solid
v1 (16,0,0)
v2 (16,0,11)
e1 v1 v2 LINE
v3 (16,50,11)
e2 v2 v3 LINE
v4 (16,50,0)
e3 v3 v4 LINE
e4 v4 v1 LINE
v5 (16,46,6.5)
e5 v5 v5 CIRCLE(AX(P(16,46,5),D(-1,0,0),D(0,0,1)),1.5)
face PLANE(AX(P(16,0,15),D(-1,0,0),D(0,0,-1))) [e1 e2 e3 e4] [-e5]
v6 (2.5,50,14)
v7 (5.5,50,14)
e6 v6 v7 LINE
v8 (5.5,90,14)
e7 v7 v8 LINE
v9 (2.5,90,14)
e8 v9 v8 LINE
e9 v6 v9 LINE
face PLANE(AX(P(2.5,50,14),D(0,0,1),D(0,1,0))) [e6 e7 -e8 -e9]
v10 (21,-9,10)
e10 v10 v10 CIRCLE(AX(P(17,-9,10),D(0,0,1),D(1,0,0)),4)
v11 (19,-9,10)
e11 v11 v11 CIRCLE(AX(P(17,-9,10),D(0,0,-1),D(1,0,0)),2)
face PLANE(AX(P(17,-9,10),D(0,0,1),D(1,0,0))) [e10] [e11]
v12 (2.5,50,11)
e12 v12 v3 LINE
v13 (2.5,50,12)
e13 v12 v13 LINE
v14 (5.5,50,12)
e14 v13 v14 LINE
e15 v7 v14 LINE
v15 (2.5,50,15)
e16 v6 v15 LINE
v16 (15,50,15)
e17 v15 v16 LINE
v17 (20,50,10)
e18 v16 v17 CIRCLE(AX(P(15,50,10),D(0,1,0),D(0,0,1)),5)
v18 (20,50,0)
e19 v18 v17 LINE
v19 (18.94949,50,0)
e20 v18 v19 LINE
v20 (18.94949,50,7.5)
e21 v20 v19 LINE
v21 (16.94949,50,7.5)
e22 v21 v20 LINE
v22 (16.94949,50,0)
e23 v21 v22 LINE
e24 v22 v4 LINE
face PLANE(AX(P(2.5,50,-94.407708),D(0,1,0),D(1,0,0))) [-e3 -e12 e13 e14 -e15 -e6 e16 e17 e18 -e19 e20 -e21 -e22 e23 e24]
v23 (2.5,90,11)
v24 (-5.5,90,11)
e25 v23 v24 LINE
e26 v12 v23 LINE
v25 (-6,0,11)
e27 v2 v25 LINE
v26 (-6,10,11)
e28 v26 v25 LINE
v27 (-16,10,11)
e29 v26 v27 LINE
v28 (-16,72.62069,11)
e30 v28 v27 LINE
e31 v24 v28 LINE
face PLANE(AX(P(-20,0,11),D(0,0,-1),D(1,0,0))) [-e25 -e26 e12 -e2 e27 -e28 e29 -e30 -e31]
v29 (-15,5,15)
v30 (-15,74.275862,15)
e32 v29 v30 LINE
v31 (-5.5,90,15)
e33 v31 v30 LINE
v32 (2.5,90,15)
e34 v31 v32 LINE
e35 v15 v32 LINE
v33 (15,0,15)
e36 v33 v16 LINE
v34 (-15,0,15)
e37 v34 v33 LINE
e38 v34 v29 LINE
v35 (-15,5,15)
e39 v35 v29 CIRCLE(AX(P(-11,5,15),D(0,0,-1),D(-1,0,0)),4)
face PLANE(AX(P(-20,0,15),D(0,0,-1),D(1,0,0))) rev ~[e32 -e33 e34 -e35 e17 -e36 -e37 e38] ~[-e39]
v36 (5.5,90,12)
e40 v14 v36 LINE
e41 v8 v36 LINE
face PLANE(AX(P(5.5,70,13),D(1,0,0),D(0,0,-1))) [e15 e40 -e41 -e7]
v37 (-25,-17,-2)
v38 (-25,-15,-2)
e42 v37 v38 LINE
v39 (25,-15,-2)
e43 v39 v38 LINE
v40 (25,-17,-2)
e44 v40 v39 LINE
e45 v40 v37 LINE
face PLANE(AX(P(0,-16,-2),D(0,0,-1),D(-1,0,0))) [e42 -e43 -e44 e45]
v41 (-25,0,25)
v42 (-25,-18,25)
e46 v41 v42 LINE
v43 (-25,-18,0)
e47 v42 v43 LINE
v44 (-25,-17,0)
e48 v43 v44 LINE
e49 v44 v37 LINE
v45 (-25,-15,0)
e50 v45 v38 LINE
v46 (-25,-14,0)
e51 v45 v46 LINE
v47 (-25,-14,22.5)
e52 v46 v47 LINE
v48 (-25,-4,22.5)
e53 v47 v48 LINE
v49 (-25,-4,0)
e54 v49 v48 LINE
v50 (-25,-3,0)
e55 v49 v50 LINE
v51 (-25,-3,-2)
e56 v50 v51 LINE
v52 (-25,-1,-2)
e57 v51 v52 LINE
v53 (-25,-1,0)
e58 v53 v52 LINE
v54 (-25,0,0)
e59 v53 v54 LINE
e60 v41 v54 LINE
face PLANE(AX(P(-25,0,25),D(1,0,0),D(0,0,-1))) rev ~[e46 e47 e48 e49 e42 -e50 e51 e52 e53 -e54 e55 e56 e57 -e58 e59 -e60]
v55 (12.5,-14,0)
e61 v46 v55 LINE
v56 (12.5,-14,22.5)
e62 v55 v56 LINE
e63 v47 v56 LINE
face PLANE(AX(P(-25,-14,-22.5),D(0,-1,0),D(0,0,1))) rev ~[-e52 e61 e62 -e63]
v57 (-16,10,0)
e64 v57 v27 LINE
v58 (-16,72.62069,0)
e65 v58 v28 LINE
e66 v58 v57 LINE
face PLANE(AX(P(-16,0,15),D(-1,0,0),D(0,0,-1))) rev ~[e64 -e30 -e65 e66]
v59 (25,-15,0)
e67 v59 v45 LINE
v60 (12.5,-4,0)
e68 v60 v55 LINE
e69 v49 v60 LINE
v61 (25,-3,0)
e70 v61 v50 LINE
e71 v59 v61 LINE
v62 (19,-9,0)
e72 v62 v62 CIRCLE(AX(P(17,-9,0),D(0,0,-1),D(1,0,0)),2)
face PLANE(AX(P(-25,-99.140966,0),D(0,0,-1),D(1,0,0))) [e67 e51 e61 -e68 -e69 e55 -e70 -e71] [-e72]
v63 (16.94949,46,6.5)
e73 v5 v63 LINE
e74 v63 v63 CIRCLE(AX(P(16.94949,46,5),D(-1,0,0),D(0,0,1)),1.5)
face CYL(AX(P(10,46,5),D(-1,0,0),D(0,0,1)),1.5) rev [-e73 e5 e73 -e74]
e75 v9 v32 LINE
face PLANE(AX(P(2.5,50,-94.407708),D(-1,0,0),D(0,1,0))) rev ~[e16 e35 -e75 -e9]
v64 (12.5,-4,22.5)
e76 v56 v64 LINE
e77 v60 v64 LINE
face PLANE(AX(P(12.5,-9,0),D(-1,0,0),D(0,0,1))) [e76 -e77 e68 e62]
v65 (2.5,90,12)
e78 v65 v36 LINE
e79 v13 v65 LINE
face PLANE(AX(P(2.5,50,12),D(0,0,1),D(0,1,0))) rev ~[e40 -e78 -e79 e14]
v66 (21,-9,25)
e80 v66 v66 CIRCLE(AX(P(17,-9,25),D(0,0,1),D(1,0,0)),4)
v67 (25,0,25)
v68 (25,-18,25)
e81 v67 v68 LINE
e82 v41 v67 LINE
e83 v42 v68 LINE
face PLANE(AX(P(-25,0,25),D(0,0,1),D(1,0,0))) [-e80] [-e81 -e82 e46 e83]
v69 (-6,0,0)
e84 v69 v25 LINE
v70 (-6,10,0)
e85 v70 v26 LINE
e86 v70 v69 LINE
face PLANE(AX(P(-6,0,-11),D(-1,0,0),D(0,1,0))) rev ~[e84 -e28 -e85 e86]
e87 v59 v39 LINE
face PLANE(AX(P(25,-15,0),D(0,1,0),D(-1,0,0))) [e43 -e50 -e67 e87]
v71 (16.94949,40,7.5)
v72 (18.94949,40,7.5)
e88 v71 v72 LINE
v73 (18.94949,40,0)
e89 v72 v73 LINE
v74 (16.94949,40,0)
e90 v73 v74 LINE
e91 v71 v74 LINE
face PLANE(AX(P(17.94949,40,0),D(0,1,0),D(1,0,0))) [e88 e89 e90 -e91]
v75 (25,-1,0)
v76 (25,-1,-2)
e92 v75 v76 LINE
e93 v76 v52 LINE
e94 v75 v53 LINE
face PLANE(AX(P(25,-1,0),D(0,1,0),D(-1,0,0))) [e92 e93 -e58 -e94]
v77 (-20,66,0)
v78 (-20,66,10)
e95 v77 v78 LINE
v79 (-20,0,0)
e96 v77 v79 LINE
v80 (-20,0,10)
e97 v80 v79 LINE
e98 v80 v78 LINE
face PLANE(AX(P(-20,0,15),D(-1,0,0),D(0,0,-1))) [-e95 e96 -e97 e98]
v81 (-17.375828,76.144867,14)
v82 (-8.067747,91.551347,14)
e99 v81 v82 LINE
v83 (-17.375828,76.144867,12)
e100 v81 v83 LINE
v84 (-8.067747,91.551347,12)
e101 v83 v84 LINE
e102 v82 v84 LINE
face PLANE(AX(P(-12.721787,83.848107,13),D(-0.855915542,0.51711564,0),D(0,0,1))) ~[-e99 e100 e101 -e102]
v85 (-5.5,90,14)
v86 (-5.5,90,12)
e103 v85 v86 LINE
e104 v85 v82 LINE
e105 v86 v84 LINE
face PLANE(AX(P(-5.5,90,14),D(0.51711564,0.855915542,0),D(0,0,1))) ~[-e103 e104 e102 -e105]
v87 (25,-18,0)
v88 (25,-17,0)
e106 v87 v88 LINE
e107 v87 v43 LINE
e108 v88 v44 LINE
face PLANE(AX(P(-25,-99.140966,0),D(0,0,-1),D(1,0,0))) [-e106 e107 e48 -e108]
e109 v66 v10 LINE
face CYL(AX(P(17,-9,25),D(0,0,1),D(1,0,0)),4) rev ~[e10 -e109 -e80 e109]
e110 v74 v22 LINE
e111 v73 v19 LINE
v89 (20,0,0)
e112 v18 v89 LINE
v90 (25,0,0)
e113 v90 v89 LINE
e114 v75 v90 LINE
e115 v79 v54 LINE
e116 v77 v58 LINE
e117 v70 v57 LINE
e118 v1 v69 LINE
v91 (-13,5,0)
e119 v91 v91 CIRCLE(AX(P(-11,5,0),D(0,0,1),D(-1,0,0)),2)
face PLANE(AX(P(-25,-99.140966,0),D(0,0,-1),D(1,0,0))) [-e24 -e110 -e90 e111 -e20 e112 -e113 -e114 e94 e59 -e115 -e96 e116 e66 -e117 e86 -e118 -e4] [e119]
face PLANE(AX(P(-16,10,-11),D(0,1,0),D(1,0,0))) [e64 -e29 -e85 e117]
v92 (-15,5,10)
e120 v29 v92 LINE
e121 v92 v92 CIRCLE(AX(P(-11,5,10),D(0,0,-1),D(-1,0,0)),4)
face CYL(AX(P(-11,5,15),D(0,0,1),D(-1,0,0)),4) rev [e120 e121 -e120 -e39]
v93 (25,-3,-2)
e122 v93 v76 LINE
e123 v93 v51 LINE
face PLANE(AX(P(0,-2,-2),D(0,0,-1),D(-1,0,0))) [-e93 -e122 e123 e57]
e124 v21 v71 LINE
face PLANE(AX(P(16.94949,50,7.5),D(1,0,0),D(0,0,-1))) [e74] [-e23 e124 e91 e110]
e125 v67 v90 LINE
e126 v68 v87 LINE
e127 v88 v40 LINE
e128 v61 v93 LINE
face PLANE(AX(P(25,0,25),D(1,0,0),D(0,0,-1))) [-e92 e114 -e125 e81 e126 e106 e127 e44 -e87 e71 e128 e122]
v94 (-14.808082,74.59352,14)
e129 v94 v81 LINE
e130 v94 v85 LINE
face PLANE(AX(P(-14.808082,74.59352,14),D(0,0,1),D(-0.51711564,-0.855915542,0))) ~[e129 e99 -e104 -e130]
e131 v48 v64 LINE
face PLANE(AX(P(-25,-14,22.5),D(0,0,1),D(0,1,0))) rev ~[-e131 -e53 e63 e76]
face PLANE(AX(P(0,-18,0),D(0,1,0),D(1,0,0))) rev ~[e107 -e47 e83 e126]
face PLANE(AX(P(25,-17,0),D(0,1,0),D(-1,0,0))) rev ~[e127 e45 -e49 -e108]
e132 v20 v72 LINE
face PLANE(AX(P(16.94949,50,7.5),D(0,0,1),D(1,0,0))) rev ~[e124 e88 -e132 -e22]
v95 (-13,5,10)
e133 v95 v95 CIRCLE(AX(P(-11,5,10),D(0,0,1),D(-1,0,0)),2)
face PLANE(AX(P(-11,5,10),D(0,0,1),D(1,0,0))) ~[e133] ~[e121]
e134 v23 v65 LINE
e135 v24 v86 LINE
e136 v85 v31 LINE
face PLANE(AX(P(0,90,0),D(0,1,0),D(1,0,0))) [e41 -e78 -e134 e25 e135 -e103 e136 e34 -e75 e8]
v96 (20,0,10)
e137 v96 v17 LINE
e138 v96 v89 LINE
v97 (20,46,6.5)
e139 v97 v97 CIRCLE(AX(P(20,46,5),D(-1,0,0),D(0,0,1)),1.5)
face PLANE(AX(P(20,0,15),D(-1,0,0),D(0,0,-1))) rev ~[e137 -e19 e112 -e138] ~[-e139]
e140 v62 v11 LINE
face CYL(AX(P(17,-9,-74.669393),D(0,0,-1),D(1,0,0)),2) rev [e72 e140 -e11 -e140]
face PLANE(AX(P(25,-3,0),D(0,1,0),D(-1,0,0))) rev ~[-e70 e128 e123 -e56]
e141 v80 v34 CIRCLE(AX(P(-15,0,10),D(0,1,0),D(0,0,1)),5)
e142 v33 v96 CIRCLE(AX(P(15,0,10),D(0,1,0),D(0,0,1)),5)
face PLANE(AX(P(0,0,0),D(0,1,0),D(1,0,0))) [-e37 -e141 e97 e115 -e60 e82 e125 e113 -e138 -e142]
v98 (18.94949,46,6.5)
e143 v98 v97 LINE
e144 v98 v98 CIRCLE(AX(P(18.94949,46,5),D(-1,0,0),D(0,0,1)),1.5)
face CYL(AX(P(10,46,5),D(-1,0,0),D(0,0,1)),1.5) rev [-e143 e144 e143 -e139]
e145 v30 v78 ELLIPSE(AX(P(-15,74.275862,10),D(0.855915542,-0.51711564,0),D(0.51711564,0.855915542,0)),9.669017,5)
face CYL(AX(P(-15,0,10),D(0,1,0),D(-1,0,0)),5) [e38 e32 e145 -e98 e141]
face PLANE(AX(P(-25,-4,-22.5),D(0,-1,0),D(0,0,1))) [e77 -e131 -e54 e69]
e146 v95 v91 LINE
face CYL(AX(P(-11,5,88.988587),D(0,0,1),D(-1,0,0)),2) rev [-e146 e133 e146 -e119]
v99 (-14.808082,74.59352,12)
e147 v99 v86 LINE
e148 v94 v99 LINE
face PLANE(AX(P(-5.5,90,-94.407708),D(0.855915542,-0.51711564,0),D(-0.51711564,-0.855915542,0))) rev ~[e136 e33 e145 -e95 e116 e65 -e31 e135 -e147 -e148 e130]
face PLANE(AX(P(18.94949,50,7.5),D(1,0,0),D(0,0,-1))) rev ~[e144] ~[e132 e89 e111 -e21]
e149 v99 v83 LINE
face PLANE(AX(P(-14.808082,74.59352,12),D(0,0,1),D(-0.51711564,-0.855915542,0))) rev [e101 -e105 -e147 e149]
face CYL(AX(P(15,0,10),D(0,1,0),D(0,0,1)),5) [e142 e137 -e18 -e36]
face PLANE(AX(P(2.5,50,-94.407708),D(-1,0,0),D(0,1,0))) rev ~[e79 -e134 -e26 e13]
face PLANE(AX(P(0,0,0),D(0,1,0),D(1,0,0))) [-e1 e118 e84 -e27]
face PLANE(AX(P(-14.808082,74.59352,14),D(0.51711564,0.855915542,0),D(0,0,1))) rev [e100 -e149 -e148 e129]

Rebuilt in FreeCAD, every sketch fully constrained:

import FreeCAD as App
import Part
import Sketcher
Q = App.Units.Quantity


def edges_at(feature, points):
    """Names of the edges that pass closest to the given points."""
    edges = feature.Shape.Edges
    near = lambda p: min(range(len(edges)), key=lambda i: edges[i].distToShape(Part.Vertex(*p))[0])
    return sorted({f"Edge{near(p) + 1}" for p in points})


def faces_at(feature, points):
    """Names of the faces that lie closest to the given points."""
    faces = feature.Shape.Faces
    near = lambda p: min(range(len(faces)), key=lambda i: faces[i].distToShape(Part.Vertex(*p))[0])
    return sorted({f"Face{near(p) + 1}" for p in points})

doc = App.newDocument("Part")
body = doc.addObject("PartDesign::Body", "Body")

sketch1 = body.newObject("Sketcher::SketchObject", "Sketch")
sketch1.AttachmentSupport = (doc.getObject("XZ_Plane"), [""])
sketch1.MapMode = "FlatFace"
sketch1.addGeometry([
    Part.LineSegment(App.Vector(-20, -15, 0), App.Vector(-20, 15, 0)),
    Part.LineSegment(App.Vector(-20, 15, 0), App.Vector(20, 15, 0)),
    Part.LineSegment(App.Vector(20, 15, 0), App.Vector(20, -15, 0)),
    Part.LineSegment(App.Vector(20, -15, 0), App.Vector(-20, -15, 0)),
], False)
sketch1.addConstraint([
    Sketcher.Constraint("Coincident", 0, 2, 1, 1),
    Sketcher.Constraint("Coincident", 1, 2, 2, 1),
    Sketcher.Constraint("Coincident", 2, 2, 3, 1),
    Sketcher.Constraint("Coincident", 3, 2, 0, 1),
    Sketcher.Constraint("Vertical", 0),
    Sketcher.Constraint("Horizontal", 1),
    Sketcher.Constraint("Vertical", 2),
    Sketcher.Constraint("Horizontal", 3),
    Sketcher.Constraint("Symmetric", 0, 2, 2, 2, -1, 1),
    Sketcher.Constraint("DistanceX", 1, 1, 1, 2, Q("40 mm")),
    Sketcher.Constraint("DistanceY", 0, 1, 0, 2, Q("30 mm")),
])
pad1 = body.newObject("PartDesign::Pad", "Pad")
pad1.Profile = sketch1
pad1.Length = 90
pad1.Reversed = True
doc.recompute()

thickness = body.newObject("PartDesign::Thickness", "Thickness")
thickness.Base = (pad1, faces_at(pad1, [(0, 90, 0), (0, 0, 0)]))
thickness.Value = 4
thickness.Reversed = True
thickness.Join = "Intersection"
doc.recompute()

fillet = body.newObject("PartDesign::Fillet", "Fillet")
fillet.Base = (thickness, edges_at(thickness, [
    (20, 45, 15),
    (-20, 45, 15),
    (-20, 45, -15),
    (20, 45, -15),
]))
fillet.Radius = 5

sketch2 = body.newObject("Sketcher::SketchObject", "Sketch001")
sketch2.AttachmentSupport = (doc.getObject("XY_Plane"), [""])
sketch2.MapMode = "FlatFace"
sketch2.addGeometry([
    Part.LineSegment(App.Vector(-20, 66, 0), App.Vector(-6, 90, 0)),
    Part.LineSegment(App.Vector(-6, 90, 0), App.Vector(-20, 90, 0)),
    Part.LineSegment(App.Vector(-20, 90, 0), App.Vector(-20, 66, 0)),
], False)
sketch2.addConstraint([
    Sketcher.Constraint("Coincident", 0, 2, 1, 1),
    Sketcher.Constraint("Coincident", 1, 2, 2, 1),
    Sketcher.Constraint("Coincident", 2, 2, 0, 1),
    Sketcher.Constraint("Horizontal", 1),
    Sketcher.Constraint("Vertical", 2),
    Sketcher.Constraint("DistanceY", 2, 2, 2, 1, Q("24 mm")),
    Sketcher.Constraint("DistanceX", 1, 2, 1, 1, Q("14.5 mm")),
    Sketcher.Constraint("DistanceY", -1, 1, 0, 2, Q("90 mm")),
    Sketcher.Constraint("DistanceX", 1, 2, -1, 1, Q("20 mm")),
])
pocket1 = body.newObject("PartDesign::Pocket", "Pocket")
pocket1.Profile = sketch2
pocket1.Type = "ThroughAll"
pocket1.Midplane = True

sketch3 = body.newObject("Sketcher::SketchObject", "Sketch002")
sketch3.AttachmentSupport = (doc.getObject("XY_Plane"), [""])
sketch3.MapMode = "FlatFace"
sketch3.addGeometry([
    Part.LineSegment(App.Vector(2, 90, 0), App.Vector(2, 50, 0)),
    Part.LineSegment(App.Vector(2, 50, 0), App.Vector(20, 50, 0)),
    Part.LineSegment(App.Vector(20, 50, 0), App.Vector(20, 90, 0)),
    Part.LineSegment(App.Vector(20, 90, 0), App.Vector(2, 90, 0)),
], False)
sketch3.addConstraint([
    Sketcher.Constraint("Coincident", 0, 2, 1, 1),
    Sketcher.Constraint("Coincident", 1, 2, 2, 1),
    Sketcher.Constraint("Coincident", 2, 2, 3, 1),
    Sketcher.Constraint("Coincident", 3, 2, 0, 1),
    Sketcher.Constraint("Vertical", 0),
    Sketcher.Constraint("Horizontal", 1),
    Sketcher.Constraint("Vertical", 2),
    Sketcher.Constraint("Horizontal", 3),
    Sketcher.Constraint("DistanceY", 0, 2, 0, 1, Q("40 mm")),
    Sketcher.Constraint("DistanceX", 1, 1, 1, 2, Q("17.5 mm")),
    Sketcher.Constraint("DistanceY", -1, 1, 0, 2, Q("50 mm")),
    Sketcher.Constraint("DistanceX", -1, 1, 1, 2, Q("20 mm")),
])
pocket2 = body.newObject("PartDesign::Pocket", "Pocket001")
pocket2.Profile = sketch3
pocket2.Type = "ThroughAll"
pocket2.Midplane = True

sketch4 = body.newObject("Sketcher::SketchObject", "Sketch003")
sketch4.AttachmentSupport = (doc.getObject("YZ_Plane"), [""])
sketch4.MapMode = "FlatFace"
sketch4.AttachmentOffset = App.Placement(App.Vector(0, 0, 2.5), App.Rotation())
sketch4.addGeometry([
    Part.LineSegment(App.Vector(90, 14, 0), App.Vector(50, 14, 0)),
    Part.LineSegment(App.Vector(50, 14, 0), App.Vector(50, 12, 0)),
    Part.LineSegment(App.Vector(50, 12, 0), App.Vector(90, 12, 0)),
    Part.LineSegment(App.Vector(90, 12, 0), App.Vector(90, 14, 0)),
], False)
sketch4.addConstraint([
    Sketcher.Constraint("Coincident", 0, 2, 1, 1),
    Sketcher.Constraint("Coincident", 1, 2, 2, 1),
    Sketcher.Constraint("Coincident", 2, 2, 3, 1),
    Sketcher.Constraint("Coincident", 3, 2, 0, 1),
    Sketcher.Constraint("Horizontal", 0),
    Sketcher.Constraint("Vertical", 1),
    Sketcher.Constraint("Horizontal", 2),
    Sketcher.Constraint("Vertical", 3),
    Sketcher.Constraint("DistanceX", 0, 2, 0, 1, Q("40 mm")),
    Sketcher.Constraint("DistanceY", 1, 2, 1, 1, Q("2 mm")),
    Sketcher.Constraint("DistanceX", -1, 1, 0, 2, Q("50 mm")),
    Sketcher.Constraint("DistanceY", -1, 1, 0, 2, Q("14 mm")),
])
pad2 = body.newObject("PartDesign::Pad", "Pad001")
pad2.Profile = sketch4
pad2.Length = 3
doc.recompute()

mirrored = body.newObject("PartDesign::Mirrored", "Mirrored")
mirrored.Originals = [pad2]
mirrored.MirrorPlane = (doc.getObject("XY_Plane"), [""])
body.Tip = mirrored

sketch5 = body.newObject("Sketcher::SketchObject", "Sketch004")
sketch5.Placement = App.Placement(App.Vector(-43.863911, 26.501113, 0), App.Rotation(App.Vector(0, 0, 1), App.Vector(0.51711564, 0.855915542, 0), App.Vector(-0.855915542, 0.51711564, 0), "ZXY"))
sketch5.addGeometry([
    Part.LineSegment(App.Vector(-14, 74.2, 0), App.Vector(-14, 56.2, 0)),
    Part.LineSegment(App.Vector(-14, 56.2, 0), App.Vector(-12, 56.2, 0)),
    Part.LineSegment(App.Vector(-12, 56.2, 0), App.Vector(-12, 74.2, 0)),
    Part.LineSegment(App.Vector(-12, 74.2, 0), App.Vector(-14, 74.2, 0)),
], False)
sketch5.addConstraint([
    Sketcher.Constraint("Coincident", 0, 2, 1, 1),
    Sketcher.Constraint("Coincident", 1, 2, 2, 1),
    Sketcher.Constraint("Coincident", 2, 2, 3, 1),
    Sketcher.Constraint("Coincident", 3, 2, 0, 1),
    Sketcher.Constraint("Vertical", 0),
    Sketcher.Constraint("Horizontal", 1),
    Sketcher.Constraint("Vertical", 2),
    Sketcher.Constraint("Horizontal", 3),
    Sketcher.Constraint("DistanceX", 1, 1, 1, 2, Q("2 mm")),
    Sketcher.Constraint("DistanceY", 0, 2, 0, 1, Q("18 mm")),
    Sketcher.Constraint("DistanceX", 0, 2, -1, 1, Q("14 mm")),
    Sketcher.Constraint("DistanceY", -1, 1, 0, 2, Q("56.188263 mm")),
])
pad3 = body.newObject("PartDesign::Pad", "Pad002")
pad3.Profile = sketch5
pad3.Length = 3
doc.recompute()

mirrored2 = body.newObject("PartDesign::Mirrored", "Mirrored001")
mirrored2.Originals = [pad3]
mirrored2.MirrorPlane = (doc.getObject("XY_Plane"), [""])
body.Tip = mirrored2

sketch6 = body.newObject("Sketcher::SketchObject", "Sketch005")
sketch6.AttachmentSupport = (doc.getObject("XZ_Plane"), [""])
sketch6.MapMode = "FlatFace"
sketch6.addGeometry([
    Part.LineSegment(App.Vector(-25, -25, 0), App.Vector(-25, 25, 0)),
    Part.LineSegment(App.Vector(-25, 25, 0), App.Vector(25, 25, 0)),
    Part.LineSegment(App.Vector(25, 25, 0), App.Vector(25, -25, 0)),
    Part.LineSegment(App.Vector(25, -25, 0), App.Vector(-25, -25, 0)),
], False)
sketch6.addConstraint([
    Sketcher.Constraint("Coincident", 0, 2, 1, 1),
    Sketcher.Constraint("Coincident", 1, 2, 2, 1),
    Sketcher.Constraint("Coincident", 2, 2, 3, 1),
    Sketcher.Constraint("Coincident", 3, 2, 0, 1),
    Sketcher.Constraint("Vertical", 0),
    Sketcher.Constraint("Horizontal", 1),
    Sketcher.Constraint("Vertical", 2),
    Sketcher.Constraint("Horizontal", 3),
    Sketcher.Constraint("Symmetric", 0, 2, 2, 2, -1, 1),
    Sketcher.Constraint("Equal", 3, 0),
    Sketcher.Constraint("DistanceX", 1, 1, 1, 2, Q("50 mm")),
])
pad4 = body.newObject("PartDesign::Pad", "Pad003")
pad4.Profile = sketch6
pad4.Length = 18

sketch7 = body.newObject("Sketcher::SketchObject", "Sketch006")
sketch7.AttachmentSupport = (doc.getObject("YZ_Plane"), [""])
sketch7.MapMode = "FlatFace"
sketch7.AttachmentOffset = App.Placement(App.Vector(0, 0, -25), App.Rotation())
sketch7.addGeometry([
    Part.LineSegment(App.Vector(-4, -22, 0), App.Vector(-14, -22, 0)),
    Part.LineSegment(App.Vector(-14, -22, 0), App.Vector(-14, 22, 0)),
    Part.LineSegment(App.Vector(-14, 22, 0), App.Vector(-4, 22, 0)),
    Part.LineSegment(App.Vector(-4, 22, 0), App.Vector(-4, -22, 0)),
], False)
sketch7.addConstraint([
    Sketcher.Constraint("Coincident", 0, 2, 1, 1),
    Sketcher.Constraint("Coincident", 1, 2, 2, 1),
    Sketcher.Constraint("Coincident", 2, 2, 3, 1),
    Sketcher.Constraint("Coincident", 3, 2, 0, 1),
    Sketcher.Constraint("Horizontal", 0),
    Sketcher.Constraint("Vertical", 1),
    Sketcher.Constraint("Horizontal", 2),
    Sketcher.Constraint("Vertical", 3),
    Sketcher.Constraint("DistanceX", 0, 2, 0, 1, Q("10 mm")),
    Sketcher.Constraint("DistanceY", 1, 1, 1, 2, Q("45 mm")),
    Sketcher.Constraint("DistanceX", 0, 2, -1, 1, Q("14 mm")),
    Sketcher.Constraint("DistanceY", 0, 2, -1, 1, Q("22.5 mm")),
])
pocket3 = body.newObject("PartDesign::Pocket", "Pocket002")
pocket3.Profile = sketch7
pocket3.Length = 37.5
pocket3.Reversed = True

sketch8 = body.newObject("Sketcher::SketchObject", "Sketch007")
sketch8.AttachmentSupport = (doc.getObject("XY_Plane"), [""])
sketch8.MapMode = "FlatFace"
sketch8.AttachmentOffset = App.Placement(App.Vector(0, 0, -11), App.Rotation())
sketch8.addGeometry([
    Part.LineSegment(App.Vector(-16, 10, 0), App.Vector(-16, 0, 0)),
    Part.LineSegment(App.Vector(-16, 0, 0), App.Vector(-6, 0, 0)),
    Part.LineSegment(App.Vector(-6, 0, 0), App.Vector(-6, 10, 0)),
    Part.LineSegment(App.Vector(-6, 10, 0), App.Vector(-16, 10, 0)),
], False)
sketch8.addConstraint([
    Sketcher.Constraint("Coincident", 0, 2, 1, 1),
    Sketcher.Constraint("Coincident", 1, 2, 2, 1),
    Sketcher.Constraint("Coincident", 2, 2, 3, 1),
    Sketcher.Constraint("Coincident", 3, 2, 0, 1),
    Sketcher.Constraint("Vertical", 0),
    Sketcher.Constraint("Horizontal", 1),
    Sketcher.Constraint("Vertical", 2),
    Sketcher.Constraint("Horizontal", 3),
    Sketcher.Constraint("PointOnObject", 0, 2, -1),
    Sketcher.Constraint("Equal", 3, 0),
    Sketcher.Constraint("DistanceX", 1, 1, 1, 2, Q("10 mm")),
    Sketcher.Constraint("DistanceX", 0, 2, -1, 1, Q("16 mm")),
])
pad5 = body.newObject("PartDesign::Pad", "Pad004")
pad5.Profile = sketch8
pad5.Type = "UpToFirst"

sketch9 = body.newObject("Sketcher::SketchObject", "Sketch008")
sketch9.AttachmentSupport = (doc.getObject("XY_Plane"), [""])
sketch9.MapMode = "FlatFace"
sketch9.AttachmentOffset = App.Placement(App.Vector(0, 0, -15), App.Rotation())
sketch9.addGeometry(Part.Circle(App.Vector(-11, 5, 0), App.Vector(0, 0, 1), 2), False)
sketch9.addConstraint([
    Sketcher.Constraint("Diameter", 0, Q("4 mm")),
    Sketcher.Constraint("DistanceX", 0, 3, -1, 1, Q("11 mm")),
    Sketcher.Constraint("DistanceY", -1, 1, 0, 3, Q("5 mm")),
])
pocket4 = body.newObject("PartDesign::Pocket", "Pocket003")
pocket4.Profile = sketch9
pocket4.Type = "ThroughAll"
pocket4.Midplane = True

sketch10 = body.newObject("Sketcher::SketchObject", "Sketch009")
sketch10.AttachmentSupport = (doc.getObject("XY_Plane"), [""])
sketch10.MapMode = "FlatFace"
sketch10.AttachmentOffset = App.Placement(App.Vector(0, 0, -15), App.Rotation())
sketch10.addGeometry(Part.Circle(App.Vector(-11, 5, 0), App.Vector(0, 0, 1), 4), False)
sketch10.addConstraint([
    Sketcher.Constraint("Diameter", 0, Q("8 mm")),
    Sketcher.Constraint("DistanceX", 0, 3, -1, 1, Q("11 mm")),
    Sketcher.Constraint("DistanceY", -1, 1, 0, 3, Q("5 mm")),
])
pocket5 = body.newObject("PartDesign::Pocket", "Pocket004")
pocket5.Profile = sketch10
pocket5.Length = 5
pocket5.Reversed = True
doc.recompute()

mirrored3 = body.newObject("PartDesign::Mirrored", "Mirrored002")
mirrored3.Originals = [pocket5]
mirrored3.MirrorPlane = (doc.getObject("XY_Plane"), [""])
body.Tip = mirrored3

sketch11 = body.newObject("Sketcher::SketchObject", "Sketch010")
sketch11.AttachmentSupport = (doc.getObject("XZ_Plane"), [""])
sketch11.MapMode = "FlatFace"
sketch11.AttachmentOffset = App.Placement(App.Vector(0, 0, -50), App.Rotation())
sketch11.addGeometry([
    Part.LineSegment(App.Vector(16.9, -7.5, 0), App.Vector(16.9, 7.5, 0)),
    Part.LineSegment(App.Vector(16.9, 7.5, 0), App.Vector(18.9, 7.5, 0)),
    Part.LineSegment(App.Vector(18.9, 7.5, 0), App.Vector(18.9, -7.5, 0)),
    Part.LineSegment(App.Vector(18.9, -7.5, 0), App.Vector(16.9, -7.5, 0)),
], False)
sketch11.addConstraint([
    Sketcher.Constraint("Coincident", 0, 2, 1, 1),
    Sketcher.Constraint("Coincident", 1, 2, 2, 1),
    Sketcher.Constraint("Coincident", 2, 2, 3, 1),
    Sketcher.Constraint("Coincident", 3, 2, 0, 1),
    Sketcher.Constraint("Vertical", 0),
    Sketcher.Constraint("Horizontal", 1),
    Sketcher.Constraint("Vertical", 2),
    Sketcher.Constraint("Horizontal", 3),
    Sketcher.Constraint("DistanceX", 1, 1, 1, 2, Q("2 mm")),
    Sketcher.Constraint("DistanceY", 0, 1, 0, 2, Q("15 mm")),
    Sketcher.Constraint("DistanceY", -1, 1, 0, 2, Q("7.5 mm")),
    Sketcher.Constraint("DistanceX", -1, 1, 0, 2, Q("16.94949 mm")),
])
pocket6 = body.newObject("PartDesign::Pocket", "Pocket005")
pocket6.Profile = sketch11
pocket6.Length = 10
pocket6.Reversed = True

sketch12 = body.newObject("Sketcher::SketchObject", "Sketch011")
sketch12.AttachmentSupport = (doc.getObject("YZ_Plane"), [""])
sketch12.MapMode = "FlatFace"
sketch12.AttachmentOffset = App.Placement(App.Vector(0, 0, 10), App.Rotation())
sketch12.addGeometry(Part.Circle(App.Vector(46, 5, 0), App.Vector(0, 0, 1), 1.5), False)
sketch12.addConstraint([
    Sketcher.Constraint("Diameter", 0, Q("3 mm")),
    Sketcher.Constraint("DistanceX", -1, 1, 0, 3, Q("46 mm")),
    Sketcher.Constraint("DistanceY", -1, 1, 0, 3, Q("5 mm")),
])
pocket7 = body.newObject("PartDesign::Pocket", "Pocket006")
pocket7.Profile = sketch12
pocket7.Length = 116.031658
pocket7.Reversed = True
doc.recompute()

mirrored4 = body.newObject("PartDesign::Mirrored", "Mirrored003")
mirrored4.Originals = [pocket7]
mirrored4.MirrorPlane = (doc.getObject("XY_Plane"), [""])
body.Tip = mirrored4

sketch13 = body.newObject("Sketcher::SketchObject", "Sketch012")
sketch13.AttachmentSupport = (doc.getObject("XZ_Plane"), [""])
sketch13.MapMode = "FlatFace"
sketch13.addGeometry([
    Part.LineSegment(App.Vector(-25, -25, 0), App.Vector(-25, 0, 0)),
    Part.LineSegment(App.Vector(-25, 0, 0), App.Vector(25, 0, 0)),
    Part.LineSegment(App.Vector(25, 0, 0), App.Vector(25, -25, 0)),
    Part.LineSegment(App.Vector(25, -25, 0), App.Vector(-25, -25, 0)),
], False)
sketch13.addConstraint([
    Sketcher.Constraint("Coincident", 0, 2, 1, 1),
    Sketcher.Constraint("Coincident", 1, 2, 2, 1),
    Sketcher.Constraint("Coincident", 2, 2, 3, 1),
    Sketcher.Constraint("Coincident", 3, 2, 0, 1),
    Sketcher.Constraint("Vertical", 0),
    Sketcher.Constraint("Horizontal", 1),
    Sketcher.Constraint("Vertical", 2),
    Sketcher.Constraint("Horizontal", 3),
    Sketcher.Constraint("Symmetric", 0, 2, 1, 2, -1, 1),
    Sketcher.Constraint("DistanceX", 1, 1, 1, 2, Q("50 mm")),
    Sketcher.Constraint("DistanceY", 0, 1, 0, 2, Q("25 mm")),
])
pocket8 = body.newObject("PartDesign::Pocket", "Pocket007")
pocket8.Profile = sketch13
pocket8.Type = "ThroughAll"
pocket8.Midplane = True

sketch14 = body.newObject("Sketcher::SketchObject", "Sketch013")
sketch14.AttachmentSupport = (doc.getObject("XY_Plane"), [""])
sketch14.MapMode = "FlatFace"
sketch14.addGeometry([
    Part.LineSegment(App.Vector(25, -1, 0), App.Vector(25, -3, 0)),
    Part.LineSegment(App.Vector(25, -3, 0), App.Vector(-25, -3, 0)),
    Part.LineSegment(App.Vector(-25, -3, 0), App.Vector(-25, -1, 0)),
    Part.LineSegment(App.Vector(-25, -1, 0), App.Vector(25, -1, 0)),
], False)
sketch14.addConstraint([
    Sketcher.Constraint("Coincident", 0, 2, 1, 1),
    Sketcher.Constraint("Coincident", 1, 2, 2, 1),
    Sketcher.Constraint("Coincident", 2, 2, 3, 1),
    Sketcher.Constraint("Coincident", 3, 2, 0, 1),
    Sketcher.Constraint("Vertical", 0),
    Sketcher.Constraint("Horizontal", 1),
    Sketcher.Constraint("Vertical", 2),
    Sketcher.Constraint("Horizontal", 3),
    Sketcher.Constraint("DistanceX", 1, 2, 1, 1, Q("50 mm")),
    Sketcher.Constraint("DistanceY", 0, 2, 0, 1, Q("2 mm")),
    Sketcher.Constraint("DistanceX", -1, 1, 0, 2, Q("25 mm")),
    Sketcher.Constraint("DistanceY", 0, 2, -1, 1, Q("3 mm")),
])
pad6 = body.newObject("PartDesign::Pad", "Pad005")
pad6.Profile = sketch14
pad6.Length = 2
pad6.Reversed = True

sketch15 = body.newObject("Sketcher::SketchObject", "Sketch014")
sketch15.AttachmentSupport = (doc.getObject("XY_Plane"), [""])
sketch15.MapMode = "FlatFace"
sketch15.addGeometry([
    Part.LineSegment(App.Vector(25, -15, 0), App.Vector(25, -17, 0)),
    Part.LineSegment(App.Vector(25, -17, 0), App.Vector(-25, -17, 0)),
    Part.LineSegment(App.Vector(-25, -17, 0), App.Vector(-25, -15, 0)),
    Part.LineSegment(App.Vector(-25, -15, 0), App.Vector(25, -15, 0)),
], False)
sketch15.addConstraint([
    Sketcher.Constraint("Coincident", 0, 2, 1, 1),
    Sketcher.Constraint("Coincident", 1, 2, 2, 1),
    Sketcher.Constraint("Coincident", 2, 2, 3, 1),
    Sketcher.Constraint("Coincident", 3, 2, 0, 1),
    Sketcher.Constraint("Vertical", 0),
    Sketcher.Constraint("Horizontal", 1),
    Sketcher.Constraint("Vertical", 2),
    Sketcher.Constraint("Horizontal", 3),
    Sketcher.Constraint("DistanceX", 1, 2, 1, 1, Q("50 mm")),
    Sketcher.Constraint("DistanceY", 0, 2, 0, 1, Q("2 mm")),
    Sketcher.Constraint("DistanceX", -1, 1, 0, 2, Q("25 mm")),
    Sketcher.Constraint("DistanceY", 0, 2, -1, 1, Q("17 mm")),
])
pad7 = body.newObject("PartDesign::Pad", "Pad006")
pad7.Profile = sketch15
pad7.Length = 2
pad7.Reversed = True

sketch16 = body.newObject("Sketcher::SketchObject", "Sketch015")
sketch16.AttachmentSupport = (doc.getObject("XY_Plane"), [""])
sketch16.MapMode = "FlatFace"
sketch16.AttachmentOffset = App.Placement(App.Vector(0, 0, 25), App.Rotation())
sketch16.addGeometry(Part.Circle(App.Vector(17, -9, 0), App.Vector(0, 0, 1), 2), False)
sketch16.addConstraint([
    Sketcher.Constraint("Diameter", 0, Q("4 mm")),
    Sketcher.Constraint("DistanceX", -1, 1, 0, 3, Q("17 mm")),
    Sketcher.Constraint("DistanceY", 0, 3, -1, 1, Q("9 mm")),
])
pocket9 = body.newObject("PartDesign::Pocket", "Pocket008")
pocket9.Profile = sketch16
pocket9.Type = "ThroughAll"
pocket9.Midplane = True

sketch17 = body.newObject("Sketcher::SketchObject", "Sketch016")
sketch17.AttachmentSupport = (doc.getObject("XY_Plane"), [""])
sketch17.MapMode = "FlatFace"
sketch17.AttachmentOffset = App.Placement(App.Vector(0, 0, 25), App.Rotation())
sketch17.addGeometry(Part.Circle(App.Vector(17, -9, 0), App.Vector(0, 0, 1), 4), False)
sketch17.addConstraint([
    Sketcher.Constraint("Diameter", 0, Q("8 mm")),
    Sketcher.Constraint("DistanceX", -1, 1, 0, 3, Q("17 mm")),
    Sketcher.Constraint("DistanceY", 0, 3, -1, 1, Q("9 mm")),
])
pocket10 = body.newObject("PartDesign::Pocket", "Pocket009")
pocket10.Profile = sketch17
pocket10.Length = 15

doc.recompute()
